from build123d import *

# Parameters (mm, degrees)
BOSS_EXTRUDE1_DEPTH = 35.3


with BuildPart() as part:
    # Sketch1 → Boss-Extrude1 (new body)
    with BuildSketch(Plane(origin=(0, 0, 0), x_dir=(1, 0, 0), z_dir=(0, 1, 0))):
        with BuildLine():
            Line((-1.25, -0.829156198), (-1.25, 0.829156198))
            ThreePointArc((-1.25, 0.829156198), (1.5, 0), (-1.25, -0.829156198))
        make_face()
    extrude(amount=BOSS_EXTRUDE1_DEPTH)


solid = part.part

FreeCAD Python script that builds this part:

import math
import FreeCAD as App
import Part
import Sketcher
Q = App.Units.Quantity

doc = App.newDocument("Part")
body = doc.addObject("PartDesign::Body", "Body")

# Sketch on XZ plane
sketch1 = body.newObject("Sketcher::SketchObject", "Sketch")
sketch1.AttachmentSupport = (doc.getObject("XZ_Plane"), [""])
sketch1.MapMode = "FlatFace"
sketch1.addGeometry([
    Part.LineSegment(App.Vector(-1.2, -0.8, 0), App.Vector(-1.2, 0.8, 0)),
    Part.ArcOfCircle(Part.Circle(App.Vector(0, 0, 0), App.Vector(0, 0, 1), 1.5), math.radians(-146), math.radians(146)),
], False)
sketch1.addConstraint([
    Sketcher.Constraint("Coincident", 0, 1, 1, 1),
    Sketcher.Constraint("Coincident", 1, 2, 0, 2),
    Sketcher.Constraint("Vertical", 0),
    Sketcher.Constraint("Coincident", 1, 3, -1, 1),
    Sketcher.Constraint("Radius", 1, Q("1.5 mm")),
    Sketcher.Constraint("DistanceX", 0, 1, -1, 1, Q("1.25 mm")),
])
pad1 = body.newObject("PartDesign::Pad", "Pad")
pad1.Profile = sketch1
pad1.Length = 35.3
pad1.Reversed = True

doc.recompute()
